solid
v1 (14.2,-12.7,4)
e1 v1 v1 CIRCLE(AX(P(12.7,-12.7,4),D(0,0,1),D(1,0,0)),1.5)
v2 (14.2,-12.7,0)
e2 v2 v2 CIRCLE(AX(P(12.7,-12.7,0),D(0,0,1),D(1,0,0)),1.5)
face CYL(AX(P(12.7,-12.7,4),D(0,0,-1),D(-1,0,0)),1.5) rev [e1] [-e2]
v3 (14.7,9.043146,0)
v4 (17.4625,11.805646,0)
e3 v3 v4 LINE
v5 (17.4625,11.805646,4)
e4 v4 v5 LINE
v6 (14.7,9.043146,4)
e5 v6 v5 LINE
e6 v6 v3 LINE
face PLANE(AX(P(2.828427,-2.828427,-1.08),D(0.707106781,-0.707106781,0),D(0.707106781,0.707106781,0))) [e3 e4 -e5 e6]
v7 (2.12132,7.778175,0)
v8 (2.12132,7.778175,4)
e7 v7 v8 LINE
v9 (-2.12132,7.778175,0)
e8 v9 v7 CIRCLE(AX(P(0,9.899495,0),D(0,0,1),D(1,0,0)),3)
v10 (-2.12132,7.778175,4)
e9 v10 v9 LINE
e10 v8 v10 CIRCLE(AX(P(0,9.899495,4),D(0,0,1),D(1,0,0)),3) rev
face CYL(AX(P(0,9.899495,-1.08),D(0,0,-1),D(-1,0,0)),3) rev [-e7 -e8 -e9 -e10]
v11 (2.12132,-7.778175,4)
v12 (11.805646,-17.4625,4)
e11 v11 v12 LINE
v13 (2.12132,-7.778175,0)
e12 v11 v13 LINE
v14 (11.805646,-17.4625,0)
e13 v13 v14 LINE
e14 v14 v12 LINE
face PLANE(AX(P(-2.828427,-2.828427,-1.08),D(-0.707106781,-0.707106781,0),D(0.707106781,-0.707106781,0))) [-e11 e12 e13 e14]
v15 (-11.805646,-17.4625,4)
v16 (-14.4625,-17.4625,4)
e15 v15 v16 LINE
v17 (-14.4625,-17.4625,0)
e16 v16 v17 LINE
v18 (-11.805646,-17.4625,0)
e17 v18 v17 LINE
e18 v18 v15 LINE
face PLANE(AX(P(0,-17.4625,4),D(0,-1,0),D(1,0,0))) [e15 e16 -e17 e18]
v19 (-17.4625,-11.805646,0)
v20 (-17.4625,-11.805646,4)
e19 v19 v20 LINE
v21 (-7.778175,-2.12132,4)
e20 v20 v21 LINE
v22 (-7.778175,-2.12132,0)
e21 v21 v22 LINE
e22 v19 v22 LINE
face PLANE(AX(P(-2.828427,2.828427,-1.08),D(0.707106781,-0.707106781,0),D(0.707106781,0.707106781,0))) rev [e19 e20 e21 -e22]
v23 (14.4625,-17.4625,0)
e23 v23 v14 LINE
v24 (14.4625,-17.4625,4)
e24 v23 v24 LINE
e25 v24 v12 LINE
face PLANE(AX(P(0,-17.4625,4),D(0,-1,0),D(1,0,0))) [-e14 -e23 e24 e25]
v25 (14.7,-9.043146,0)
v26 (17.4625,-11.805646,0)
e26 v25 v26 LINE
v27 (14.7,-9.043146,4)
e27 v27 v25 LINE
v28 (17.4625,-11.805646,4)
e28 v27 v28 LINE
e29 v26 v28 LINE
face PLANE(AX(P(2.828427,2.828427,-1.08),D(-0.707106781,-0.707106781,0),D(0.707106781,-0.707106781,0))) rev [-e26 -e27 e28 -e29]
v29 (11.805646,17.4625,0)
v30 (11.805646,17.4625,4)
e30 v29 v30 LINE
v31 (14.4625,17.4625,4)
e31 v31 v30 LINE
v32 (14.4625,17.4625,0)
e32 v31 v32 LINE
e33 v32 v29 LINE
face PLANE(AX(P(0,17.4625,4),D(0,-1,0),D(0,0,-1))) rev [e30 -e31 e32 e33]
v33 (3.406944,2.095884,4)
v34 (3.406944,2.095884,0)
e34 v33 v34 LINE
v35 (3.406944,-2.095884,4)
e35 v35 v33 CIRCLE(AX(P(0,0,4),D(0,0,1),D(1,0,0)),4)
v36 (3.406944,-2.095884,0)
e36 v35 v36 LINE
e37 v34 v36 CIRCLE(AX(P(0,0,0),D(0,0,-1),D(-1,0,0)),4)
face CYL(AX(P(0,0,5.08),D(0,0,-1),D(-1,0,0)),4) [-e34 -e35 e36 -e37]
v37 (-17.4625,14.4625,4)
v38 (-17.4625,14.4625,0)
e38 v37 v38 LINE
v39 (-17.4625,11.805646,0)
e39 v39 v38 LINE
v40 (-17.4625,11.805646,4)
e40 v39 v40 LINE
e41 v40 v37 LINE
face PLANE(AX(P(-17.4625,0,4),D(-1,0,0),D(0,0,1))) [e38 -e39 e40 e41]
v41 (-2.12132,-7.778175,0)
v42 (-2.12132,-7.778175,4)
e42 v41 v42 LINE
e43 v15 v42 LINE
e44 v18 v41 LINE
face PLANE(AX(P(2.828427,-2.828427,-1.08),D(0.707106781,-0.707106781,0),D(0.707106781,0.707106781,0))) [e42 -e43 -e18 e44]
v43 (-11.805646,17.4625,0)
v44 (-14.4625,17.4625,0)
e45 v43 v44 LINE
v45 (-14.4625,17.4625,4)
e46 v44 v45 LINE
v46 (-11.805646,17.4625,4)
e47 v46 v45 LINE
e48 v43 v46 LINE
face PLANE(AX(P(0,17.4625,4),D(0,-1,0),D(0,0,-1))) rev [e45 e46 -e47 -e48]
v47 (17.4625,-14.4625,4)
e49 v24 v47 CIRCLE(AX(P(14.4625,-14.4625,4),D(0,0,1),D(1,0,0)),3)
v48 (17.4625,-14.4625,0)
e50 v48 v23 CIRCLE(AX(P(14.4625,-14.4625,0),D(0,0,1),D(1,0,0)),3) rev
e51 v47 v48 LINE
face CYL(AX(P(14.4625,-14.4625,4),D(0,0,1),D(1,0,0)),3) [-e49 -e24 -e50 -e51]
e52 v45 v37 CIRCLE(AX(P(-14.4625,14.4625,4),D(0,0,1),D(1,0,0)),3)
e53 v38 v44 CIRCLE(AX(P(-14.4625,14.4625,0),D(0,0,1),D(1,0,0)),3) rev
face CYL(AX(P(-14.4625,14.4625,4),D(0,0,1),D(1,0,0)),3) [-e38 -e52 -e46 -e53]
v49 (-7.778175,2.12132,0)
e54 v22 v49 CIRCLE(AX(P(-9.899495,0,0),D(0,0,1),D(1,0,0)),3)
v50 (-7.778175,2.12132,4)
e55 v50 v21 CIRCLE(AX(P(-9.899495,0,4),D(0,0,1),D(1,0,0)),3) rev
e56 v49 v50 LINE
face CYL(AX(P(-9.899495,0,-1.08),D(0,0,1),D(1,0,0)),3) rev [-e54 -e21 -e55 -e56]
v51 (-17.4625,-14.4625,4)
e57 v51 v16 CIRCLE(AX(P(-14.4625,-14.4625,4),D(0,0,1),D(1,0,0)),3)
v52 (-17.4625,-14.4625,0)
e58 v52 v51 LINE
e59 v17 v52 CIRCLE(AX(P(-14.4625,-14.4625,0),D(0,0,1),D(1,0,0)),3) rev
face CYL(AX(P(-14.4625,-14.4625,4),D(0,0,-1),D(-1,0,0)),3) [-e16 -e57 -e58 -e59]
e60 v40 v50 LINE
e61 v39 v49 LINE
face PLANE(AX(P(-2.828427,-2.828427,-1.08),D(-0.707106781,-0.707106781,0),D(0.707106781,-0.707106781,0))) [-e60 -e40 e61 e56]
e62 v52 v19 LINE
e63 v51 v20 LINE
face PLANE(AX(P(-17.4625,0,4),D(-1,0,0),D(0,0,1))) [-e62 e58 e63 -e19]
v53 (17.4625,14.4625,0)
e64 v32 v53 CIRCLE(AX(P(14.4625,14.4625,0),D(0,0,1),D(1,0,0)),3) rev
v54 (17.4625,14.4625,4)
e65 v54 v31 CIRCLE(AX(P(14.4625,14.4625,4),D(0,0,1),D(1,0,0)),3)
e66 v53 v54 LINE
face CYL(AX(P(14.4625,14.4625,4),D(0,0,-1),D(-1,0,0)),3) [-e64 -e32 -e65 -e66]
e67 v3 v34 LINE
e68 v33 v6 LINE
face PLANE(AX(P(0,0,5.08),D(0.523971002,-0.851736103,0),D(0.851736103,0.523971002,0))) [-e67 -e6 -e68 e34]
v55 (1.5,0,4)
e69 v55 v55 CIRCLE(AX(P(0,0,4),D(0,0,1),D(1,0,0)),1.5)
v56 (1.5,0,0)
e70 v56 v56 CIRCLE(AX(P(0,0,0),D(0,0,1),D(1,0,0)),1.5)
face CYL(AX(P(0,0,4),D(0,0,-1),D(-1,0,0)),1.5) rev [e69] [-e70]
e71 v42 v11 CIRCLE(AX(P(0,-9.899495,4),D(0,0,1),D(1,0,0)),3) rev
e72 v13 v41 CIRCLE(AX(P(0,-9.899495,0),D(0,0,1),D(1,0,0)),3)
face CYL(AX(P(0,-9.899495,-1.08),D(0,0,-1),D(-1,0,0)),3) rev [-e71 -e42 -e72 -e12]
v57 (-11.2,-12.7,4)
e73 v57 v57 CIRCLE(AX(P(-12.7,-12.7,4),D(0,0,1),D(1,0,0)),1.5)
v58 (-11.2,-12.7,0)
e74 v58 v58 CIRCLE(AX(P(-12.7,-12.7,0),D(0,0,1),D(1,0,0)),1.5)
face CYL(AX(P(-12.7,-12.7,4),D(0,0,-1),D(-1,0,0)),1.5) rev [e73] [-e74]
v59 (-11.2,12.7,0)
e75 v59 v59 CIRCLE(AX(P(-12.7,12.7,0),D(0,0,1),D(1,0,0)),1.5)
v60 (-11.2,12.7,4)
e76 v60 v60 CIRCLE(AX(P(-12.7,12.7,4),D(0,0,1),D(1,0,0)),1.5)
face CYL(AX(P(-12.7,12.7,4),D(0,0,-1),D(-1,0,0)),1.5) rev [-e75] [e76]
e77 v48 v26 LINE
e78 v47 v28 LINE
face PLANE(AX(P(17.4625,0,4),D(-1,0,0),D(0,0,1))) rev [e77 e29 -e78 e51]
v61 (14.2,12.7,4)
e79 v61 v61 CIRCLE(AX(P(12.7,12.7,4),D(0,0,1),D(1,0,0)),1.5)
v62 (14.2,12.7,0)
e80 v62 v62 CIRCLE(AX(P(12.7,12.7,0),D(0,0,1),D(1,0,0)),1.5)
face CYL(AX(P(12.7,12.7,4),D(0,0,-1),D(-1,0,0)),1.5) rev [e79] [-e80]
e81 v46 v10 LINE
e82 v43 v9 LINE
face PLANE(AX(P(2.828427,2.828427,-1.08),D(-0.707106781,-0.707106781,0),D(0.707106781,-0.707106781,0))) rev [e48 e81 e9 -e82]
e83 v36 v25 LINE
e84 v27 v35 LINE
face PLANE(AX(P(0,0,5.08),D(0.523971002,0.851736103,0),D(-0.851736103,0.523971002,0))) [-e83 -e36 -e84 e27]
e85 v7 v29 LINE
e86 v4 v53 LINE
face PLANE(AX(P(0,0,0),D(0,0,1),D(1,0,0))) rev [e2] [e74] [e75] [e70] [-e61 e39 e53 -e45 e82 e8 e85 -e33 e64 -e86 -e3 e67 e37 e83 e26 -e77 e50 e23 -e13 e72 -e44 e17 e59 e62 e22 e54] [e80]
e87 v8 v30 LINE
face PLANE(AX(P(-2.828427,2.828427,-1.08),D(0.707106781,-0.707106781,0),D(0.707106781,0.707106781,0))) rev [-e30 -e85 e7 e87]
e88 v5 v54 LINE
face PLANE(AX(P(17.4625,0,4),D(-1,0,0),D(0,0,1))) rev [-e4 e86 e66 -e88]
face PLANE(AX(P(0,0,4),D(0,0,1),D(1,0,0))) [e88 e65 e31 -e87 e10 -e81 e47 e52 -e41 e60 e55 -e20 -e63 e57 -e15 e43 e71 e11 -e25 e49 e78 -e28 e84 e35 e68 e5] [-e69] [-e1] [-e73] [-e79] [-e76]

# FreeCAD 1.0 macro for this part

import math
import FreeCAD as App
import Part
import Sketcher
from FreeCAD import Vector


def edges_at(feature, points):
    """Names of the edges that pass closest to the given points."""
    edges = feature.Shape.Edges
    near = lambda p: min(range(len(edges)), key=lambda i: edges[i].distToShape(Part.Vertex(*p))[0])
    return sorted({f"Edge{near(p) + 1}" for p in points})

doc = App.newDocument("Part")
body = doc.addObject("PartDesign::Body", "Body")

# Sketch on XY plane
sketch1 = body.newObject("Sketcher::SketchObject", "Sketch")
sketch1.AttachmentSupport = (doc.getObject("XY_Plane"), [""])
sketch1.MapMode = "FlatFace"
sketch1.addGeometry(Part.LineSegment(Vector(-17.5, 17.5, 0), Vector(-17.5, -17.5, 0)), False)
sketch1.addGeometry(Part.LineSegment(Vector(-17.5, -17.5, 0), Vector(17.5, -17.5, 0)), False)
sketch1.addGeometry(Part.LineSegment(Vector(17.5, -17.5, 0), Vector(17.5, 17.5, 0)), False)
sketch1.addGeometry(Part.LineSegment(Vector(17.5, 17.5, 0), Vector(-17.5, 17.5, 0)), False)
sketch1.addGeometry(Part.Circle(Vector(-12.7, -12.7, 0), Vector(0, 0, 1), 1.5), False)
sketch1.addGeometry(Part.Circle(Vector(12.7, -12.7, 0), Vector(0, 0, 1), 1.5), False)
sketch1.addGeometry(Part.Circle(Vector(-12.7, 12.7, 0), Vector(0, 0, 1), 1.5), False)
sketch1.addGeometry(Part.Circle(Vector(0, 0, 0), Vector(0, 0, 1), 1.5), False)
sketch1.addGeometry(Part.Circle(Vector(12.7, 12.7, 0), Vector(0, 0, 1), 1.5), False)
sketch1.addConstraint(Sketcher.Constraint("Coincident", 0, 2, 1, 1))
sketch1.addConstraint(Sketcher.Constraint("Coincident", 1, 2, 2, 1))
sketch1.addConstraint(Sketcher.Constraint("Coincident", 2, 2, 3, 1))
sketch1.addConstraint(Sketcher.Constraint("Coincident", 3, 2, 0, 1))
sketch1.addConstraint(Sketcher.Constraint("Vertical", 0))
sketch1.addConstraint(Sketcher.Constraint("Horizontal", 1))
sketch1.addConstraint(Sketcher.Constraint("Vertical", 2))
sketch1.addConstraint(Sketcher.Constraint("Horizontal", 3))
sketch1.addConstraint(Sketcher.Constraint("Coincident", 7, 3, -1, 1))
sketch1.addConstraint(Sketcher.Constraint("Equal", 4, 5))
sketch1.addConstraint(Sketcher.Constraint("Equal", 5, 6))
sketch1.addConstraint(Sketcher.Constraint("Equal", 6, 7))
sketch1.addConstraint(Sketcher.Constraint("Equal", 7, 8))
sketch1.addConstraint(Sketcher.Constraint("Symmetric", 5, 3, 6, 3, -1, 1))
sketch1.addConstraint(Sketcher.Constraint("Symmetric", 4, 3, 8, 3, -1, 1))
sketch1.addConstraint(Sketcher.Constraint("Symmetric", 0, 2, 2, 2, -1, 1))
sketch1.addConstraint(Sketcher.Constraint("Symmetric", 4, 3, 5, 3, -2))
sketch1.addConstraint(Sketcher.Constraint("Equal", 3, 0))
sketch1.addConstraint(Sketcher.Constraint("Diameter", 4, 3.0))
sketch1.addConstraint(Sketcher.Constraint("DistanceX", 4, 3, -1, 1, 12.7))
sketch1.addConstraint(Sketcher.Constraint("DistanceY", 4, 3, -1, 1, 12.7))
sketch1.addConstraint(Sketcher.Constraint("DistanceX", 1, 1, 1, 2, 34.925))
pad1 = body.newObject("PartDesign::Pad", "Pad")
pad1.Profile = sketch1
pad1.Length = 4

# Sketch on XY plane
sketch2 = body.newObject("Sketcher::SketchObject", "Sketch001")
sketch2.AttachmentSupport = (doc.getObject("XY_Plane"), [""])
sketch2.MapMode = "FlatFace"
sketch2.AttachmentOffset = App.Placement(Vector(0, 0, 4), App.Rotation())
sketch2.addGeometry(Part.LineSegment(Vector(-6, 0, 0), Vector(-17, 12, 0)), False)
sketch2.addGeometry(Part.LineSegment(Vector(-17, 12, 0), Vector(-17, -12, 0)), False)
sketch2.addGeometry(Part.LineSegment(Vector(-17, -12, 0), Vector(-6, 0, 0)), False)
sketch2.addGeometry(Part.LineSegment(Vector(-12, 17, 0), Vector(0, 6, 0)), False)
sketch2.addGeometry(Part.LineSegment(Vector(0, 6, 0), Vector(12, 17, 0)), False)
sketch2.addGeometry(Part.LineSegment(Vector(12, 17, 0), Vector(-12, 17, 0)), False)
sketch2.addGeometry(Part.LineSegment(Vector(17, 12, 0), Vector(6, 0, 0)), False)
sketch2.addGeometry(Part.LineSegment(Vector(6, 0, 0), Vector(17, -12, 0)), False)
sketch2.addGeometry(Part.LineSegment(Vector(17, -12, 0), Vector(17, 12, 0)), False)
sketch2.addGeometry(Part.LineSegment(Vector(12, -17, 0), Vector(0, -6, 0)), False)
sketch2.addGeometry(Part.LineSegment(Vector(0, -6, 0), Vector(-12, -17, 0)), False)
sketch2.addGeometry(Part.LineSegment(Vector(-12, -17, 0), Vector(12, -17, 0)), False)
sketch2.addConstraint(Sketcher.Constraint("Coincident", 0, 2, 1, 1))
sketch2.addConstraint(Sketcher.Constraint("Coincident", 1, 2, 2, 1))
sketch2.addConstraint(Sketcher.Constraint("Coincident", 2, 2, 0, 1))
sketch2.addConstraint(Sketcher.Constraint("Coincident", 3, 2, 4, 1))
sketch2.addConstraint(Sketcher.Constraint("Coincident", 4, 2, 5, 1))
sketch2.addConstraint(Sketcher.Constraint("Coincident", 5, 2, 3, 1))
sketch2.addConstraint(Sketcher.Constraint("Coincident", 6, 2, 7, 1))
sketch2.addConstraint(Sketcher.Constraint("Coincident", 7, 2, 8, 1))
sketch2.addConstraint(Sketcher.Constraint("Coincident", 8, 2, 6, 1))
sketch2.addConstraint(Sketcher.Constraint("Coincident", 9, 2, 10, 1))
sketch2.addConstraint(Sketcher.Constraint("Coincident", 10, 2, 11, 1))
sketch2.addConstraint(Sketcher.Constraint("Coincident", 11, 2, 9, 1))
sketch2.addConstraint(Sketcher.Constraint("Vertical", 1))
sketch2.addConstraint(Sketcher.Constraint("Horizontal", 5))
sketch2.addConstraint(Sketcher.Constraint("Vertical", 8))
sketch2.addConstraint(Sketcher.Constraint("Horizontal", 11))
sketch2.addConstraint(Sketcher.Constraint("Symmetric", 2, 2, 6, 2, -1, 1))
sketch2.addConstraint(Sketcher.Constraint("Symmetric", 0, 2, 7, 2, -1, 1))
sketch2.addConstraint(Sketcher.Constraint("Symmetric", 3, 2, 9, 2, -1, 1))
sketch2.addConstraint(Sketcher.Constraint("Symmetric", 4, 2, 10, 2, -1, 1))
sketch2.addConstraint(Sketcher.Constraint("PointOnObject", 2, 2, -1))
sketch2.addConstraint(Sketcher.Constraint("PointOnObject", 3, 2, -2))
sketch2.addConstraint(Sketcher.Constraint("Perpendicular", 0, 2))
sketch2.addConstraint(Sketcher.Constraint("Perpendicular", 2, 3))
sketch2.addConstraint(Sketcher.Constraint("Perpendicular", 3, 4))
sketch2.addConstraint(Sketcher.Constraint("Parallel", 4, 6))
sketch2.addConstraint(Sketcher.Constraint("Parallel", 7, 9))
sketch2.addConstraint(Sketcher.Constraint("Horizontal", 1, 2, 7, 2))
sketch2.addConstraint(Sketcher.Constraint("Equal", 11, 1))
sketch2.addConstraint(Sketcher.Constraint("DistanceX", 1, 2, 7, 2, 34.925))
sketch2.addConstraint(Sketcher.Constraint("DistanceX", 5, 2, 5, 1, 23.611292))
sketch2.addConstraint(Sketcher.Constraint("DistanceY", -1, 1, 4, 2, 17.4625))
pocket1 = body.newObject("PartDesign::Pocket", "Pocket")
pocket1.Profile = sketch2
pocket1.Length = 5.08
doc.recompute()

fillet = body.newObject("PartDesign::Fillet", "Fillet")
fillet.Base = (pocket1, edges_at(pocket1, [
    (-17.462, 17.462, 2),
    (17.462, 17.462, 2),
    (17.462, -17.462, 2),
    (-17.462, -17.462, 2),
    (5.657, 0, 2),
    (0, 5.657, 2),
    (0, -5.657, 2),
    (-5.657, 0, 2),
]))
fillet.Radius = 3

# Sketch on XY plane
sketch3 = body.newObject("Sketcher::SketchObject", "Sketch002")
sketch3.AttachmentSupport = (doc.getObject("XY_Plane"), [""])
sketch3.MapMode = "FlatFace"
sketch3.addGeometry(Part.LineSegment(Vector(14.7, -9, 0), Vector(3.4, -2.1, 0)), False)
sketch3.addGeometry(Part.ArcOfCircle(Part.Circle(Vector(0, 0, 0), Vector(0, 0, 1), 4), math.radians(-32), math.radians(32)), False)
sketch3.addGeometry(Part.LineSegment(Vector(3.4, 2.1, 0), Vector(14.7, 9, 0)), False)
sketch3.addGeometry(Part.LineSegment(Vector(14.7, 9, 0), Vector(7.8, 2.1, 0)), False)
sketch3.addGeometry(Part.ArcOfCircle(Part.Circle(Vector(9.9, 0, 0), Vector(0, 0, 1), 3), math.radians(135), math.radians(225)), False)
sketch3.addGeometry(Part.LineSegment(Vector(7.8, -2.1, 0), Vector(14.7, -9, 0)), False)
sketch3.addConstraint(Sketcher.Constraint("Coincident", 0, 2, 1, 1))
sketch3.addConstraint(Sketcher.Constraint("Coincident", 1, 2, 2, 1))
sketch3.addConstraint(Sketcher.Constraint("Coincident", 2, 2, 3, 1))
sketch3.addConstraint(Sketcher.Constraint("Tangent", 3, 2, 4, 1))
sketch3.addConstraint(Sketcher.Constraint("Tangent", 4, 2, 5, 1))
sketch3.addConstraint(Sketcher.Constraint("Coincident", 5, 2, 0, 1))
sketch3.addConstraint(Sketcher.Constraint("Coincident", 1, 3, -1, 1))
sketch3.addConstraint(Sketcher.Constraint("Symmetric", 3, 2, 4, 2, -1))
sketch3.addConstraint(Sketcher.Constraint("Perpendicular", 3, 5))
sketch3.addConstraint(Sketcher.Constraint("Vertical", 0, 2, 1, 2))
sketch3.addConstraint(Sketcher.Constraint("Vertical", 2, 2, 5, 2))
sketch3.addConstraint(Sketcher.Constraint("Radius", 1, 4.0))
sketch3.addConstraint(Sketcher.Constraint("Radius", 4, 3.0))
sketch3.addConstraint(Sketcher.Constraint("DistanceX", -1, 1, 2, 2, 14.7))
sketch3.addConstraint(Sketcher.Constraint("Distance", 3, 9.788939))
sketch3.addConstraint(Sketcher.Constraint("DistanceX", 0, 2, 4, 3, 6.492551))
pocket2 = body.newObject("PartDesign::Pocket", "Pocket001")
pocket2.Profile = sketch3
pocket2.Length = 5.08
pocket2.Reversed = True

doc.recompute()
